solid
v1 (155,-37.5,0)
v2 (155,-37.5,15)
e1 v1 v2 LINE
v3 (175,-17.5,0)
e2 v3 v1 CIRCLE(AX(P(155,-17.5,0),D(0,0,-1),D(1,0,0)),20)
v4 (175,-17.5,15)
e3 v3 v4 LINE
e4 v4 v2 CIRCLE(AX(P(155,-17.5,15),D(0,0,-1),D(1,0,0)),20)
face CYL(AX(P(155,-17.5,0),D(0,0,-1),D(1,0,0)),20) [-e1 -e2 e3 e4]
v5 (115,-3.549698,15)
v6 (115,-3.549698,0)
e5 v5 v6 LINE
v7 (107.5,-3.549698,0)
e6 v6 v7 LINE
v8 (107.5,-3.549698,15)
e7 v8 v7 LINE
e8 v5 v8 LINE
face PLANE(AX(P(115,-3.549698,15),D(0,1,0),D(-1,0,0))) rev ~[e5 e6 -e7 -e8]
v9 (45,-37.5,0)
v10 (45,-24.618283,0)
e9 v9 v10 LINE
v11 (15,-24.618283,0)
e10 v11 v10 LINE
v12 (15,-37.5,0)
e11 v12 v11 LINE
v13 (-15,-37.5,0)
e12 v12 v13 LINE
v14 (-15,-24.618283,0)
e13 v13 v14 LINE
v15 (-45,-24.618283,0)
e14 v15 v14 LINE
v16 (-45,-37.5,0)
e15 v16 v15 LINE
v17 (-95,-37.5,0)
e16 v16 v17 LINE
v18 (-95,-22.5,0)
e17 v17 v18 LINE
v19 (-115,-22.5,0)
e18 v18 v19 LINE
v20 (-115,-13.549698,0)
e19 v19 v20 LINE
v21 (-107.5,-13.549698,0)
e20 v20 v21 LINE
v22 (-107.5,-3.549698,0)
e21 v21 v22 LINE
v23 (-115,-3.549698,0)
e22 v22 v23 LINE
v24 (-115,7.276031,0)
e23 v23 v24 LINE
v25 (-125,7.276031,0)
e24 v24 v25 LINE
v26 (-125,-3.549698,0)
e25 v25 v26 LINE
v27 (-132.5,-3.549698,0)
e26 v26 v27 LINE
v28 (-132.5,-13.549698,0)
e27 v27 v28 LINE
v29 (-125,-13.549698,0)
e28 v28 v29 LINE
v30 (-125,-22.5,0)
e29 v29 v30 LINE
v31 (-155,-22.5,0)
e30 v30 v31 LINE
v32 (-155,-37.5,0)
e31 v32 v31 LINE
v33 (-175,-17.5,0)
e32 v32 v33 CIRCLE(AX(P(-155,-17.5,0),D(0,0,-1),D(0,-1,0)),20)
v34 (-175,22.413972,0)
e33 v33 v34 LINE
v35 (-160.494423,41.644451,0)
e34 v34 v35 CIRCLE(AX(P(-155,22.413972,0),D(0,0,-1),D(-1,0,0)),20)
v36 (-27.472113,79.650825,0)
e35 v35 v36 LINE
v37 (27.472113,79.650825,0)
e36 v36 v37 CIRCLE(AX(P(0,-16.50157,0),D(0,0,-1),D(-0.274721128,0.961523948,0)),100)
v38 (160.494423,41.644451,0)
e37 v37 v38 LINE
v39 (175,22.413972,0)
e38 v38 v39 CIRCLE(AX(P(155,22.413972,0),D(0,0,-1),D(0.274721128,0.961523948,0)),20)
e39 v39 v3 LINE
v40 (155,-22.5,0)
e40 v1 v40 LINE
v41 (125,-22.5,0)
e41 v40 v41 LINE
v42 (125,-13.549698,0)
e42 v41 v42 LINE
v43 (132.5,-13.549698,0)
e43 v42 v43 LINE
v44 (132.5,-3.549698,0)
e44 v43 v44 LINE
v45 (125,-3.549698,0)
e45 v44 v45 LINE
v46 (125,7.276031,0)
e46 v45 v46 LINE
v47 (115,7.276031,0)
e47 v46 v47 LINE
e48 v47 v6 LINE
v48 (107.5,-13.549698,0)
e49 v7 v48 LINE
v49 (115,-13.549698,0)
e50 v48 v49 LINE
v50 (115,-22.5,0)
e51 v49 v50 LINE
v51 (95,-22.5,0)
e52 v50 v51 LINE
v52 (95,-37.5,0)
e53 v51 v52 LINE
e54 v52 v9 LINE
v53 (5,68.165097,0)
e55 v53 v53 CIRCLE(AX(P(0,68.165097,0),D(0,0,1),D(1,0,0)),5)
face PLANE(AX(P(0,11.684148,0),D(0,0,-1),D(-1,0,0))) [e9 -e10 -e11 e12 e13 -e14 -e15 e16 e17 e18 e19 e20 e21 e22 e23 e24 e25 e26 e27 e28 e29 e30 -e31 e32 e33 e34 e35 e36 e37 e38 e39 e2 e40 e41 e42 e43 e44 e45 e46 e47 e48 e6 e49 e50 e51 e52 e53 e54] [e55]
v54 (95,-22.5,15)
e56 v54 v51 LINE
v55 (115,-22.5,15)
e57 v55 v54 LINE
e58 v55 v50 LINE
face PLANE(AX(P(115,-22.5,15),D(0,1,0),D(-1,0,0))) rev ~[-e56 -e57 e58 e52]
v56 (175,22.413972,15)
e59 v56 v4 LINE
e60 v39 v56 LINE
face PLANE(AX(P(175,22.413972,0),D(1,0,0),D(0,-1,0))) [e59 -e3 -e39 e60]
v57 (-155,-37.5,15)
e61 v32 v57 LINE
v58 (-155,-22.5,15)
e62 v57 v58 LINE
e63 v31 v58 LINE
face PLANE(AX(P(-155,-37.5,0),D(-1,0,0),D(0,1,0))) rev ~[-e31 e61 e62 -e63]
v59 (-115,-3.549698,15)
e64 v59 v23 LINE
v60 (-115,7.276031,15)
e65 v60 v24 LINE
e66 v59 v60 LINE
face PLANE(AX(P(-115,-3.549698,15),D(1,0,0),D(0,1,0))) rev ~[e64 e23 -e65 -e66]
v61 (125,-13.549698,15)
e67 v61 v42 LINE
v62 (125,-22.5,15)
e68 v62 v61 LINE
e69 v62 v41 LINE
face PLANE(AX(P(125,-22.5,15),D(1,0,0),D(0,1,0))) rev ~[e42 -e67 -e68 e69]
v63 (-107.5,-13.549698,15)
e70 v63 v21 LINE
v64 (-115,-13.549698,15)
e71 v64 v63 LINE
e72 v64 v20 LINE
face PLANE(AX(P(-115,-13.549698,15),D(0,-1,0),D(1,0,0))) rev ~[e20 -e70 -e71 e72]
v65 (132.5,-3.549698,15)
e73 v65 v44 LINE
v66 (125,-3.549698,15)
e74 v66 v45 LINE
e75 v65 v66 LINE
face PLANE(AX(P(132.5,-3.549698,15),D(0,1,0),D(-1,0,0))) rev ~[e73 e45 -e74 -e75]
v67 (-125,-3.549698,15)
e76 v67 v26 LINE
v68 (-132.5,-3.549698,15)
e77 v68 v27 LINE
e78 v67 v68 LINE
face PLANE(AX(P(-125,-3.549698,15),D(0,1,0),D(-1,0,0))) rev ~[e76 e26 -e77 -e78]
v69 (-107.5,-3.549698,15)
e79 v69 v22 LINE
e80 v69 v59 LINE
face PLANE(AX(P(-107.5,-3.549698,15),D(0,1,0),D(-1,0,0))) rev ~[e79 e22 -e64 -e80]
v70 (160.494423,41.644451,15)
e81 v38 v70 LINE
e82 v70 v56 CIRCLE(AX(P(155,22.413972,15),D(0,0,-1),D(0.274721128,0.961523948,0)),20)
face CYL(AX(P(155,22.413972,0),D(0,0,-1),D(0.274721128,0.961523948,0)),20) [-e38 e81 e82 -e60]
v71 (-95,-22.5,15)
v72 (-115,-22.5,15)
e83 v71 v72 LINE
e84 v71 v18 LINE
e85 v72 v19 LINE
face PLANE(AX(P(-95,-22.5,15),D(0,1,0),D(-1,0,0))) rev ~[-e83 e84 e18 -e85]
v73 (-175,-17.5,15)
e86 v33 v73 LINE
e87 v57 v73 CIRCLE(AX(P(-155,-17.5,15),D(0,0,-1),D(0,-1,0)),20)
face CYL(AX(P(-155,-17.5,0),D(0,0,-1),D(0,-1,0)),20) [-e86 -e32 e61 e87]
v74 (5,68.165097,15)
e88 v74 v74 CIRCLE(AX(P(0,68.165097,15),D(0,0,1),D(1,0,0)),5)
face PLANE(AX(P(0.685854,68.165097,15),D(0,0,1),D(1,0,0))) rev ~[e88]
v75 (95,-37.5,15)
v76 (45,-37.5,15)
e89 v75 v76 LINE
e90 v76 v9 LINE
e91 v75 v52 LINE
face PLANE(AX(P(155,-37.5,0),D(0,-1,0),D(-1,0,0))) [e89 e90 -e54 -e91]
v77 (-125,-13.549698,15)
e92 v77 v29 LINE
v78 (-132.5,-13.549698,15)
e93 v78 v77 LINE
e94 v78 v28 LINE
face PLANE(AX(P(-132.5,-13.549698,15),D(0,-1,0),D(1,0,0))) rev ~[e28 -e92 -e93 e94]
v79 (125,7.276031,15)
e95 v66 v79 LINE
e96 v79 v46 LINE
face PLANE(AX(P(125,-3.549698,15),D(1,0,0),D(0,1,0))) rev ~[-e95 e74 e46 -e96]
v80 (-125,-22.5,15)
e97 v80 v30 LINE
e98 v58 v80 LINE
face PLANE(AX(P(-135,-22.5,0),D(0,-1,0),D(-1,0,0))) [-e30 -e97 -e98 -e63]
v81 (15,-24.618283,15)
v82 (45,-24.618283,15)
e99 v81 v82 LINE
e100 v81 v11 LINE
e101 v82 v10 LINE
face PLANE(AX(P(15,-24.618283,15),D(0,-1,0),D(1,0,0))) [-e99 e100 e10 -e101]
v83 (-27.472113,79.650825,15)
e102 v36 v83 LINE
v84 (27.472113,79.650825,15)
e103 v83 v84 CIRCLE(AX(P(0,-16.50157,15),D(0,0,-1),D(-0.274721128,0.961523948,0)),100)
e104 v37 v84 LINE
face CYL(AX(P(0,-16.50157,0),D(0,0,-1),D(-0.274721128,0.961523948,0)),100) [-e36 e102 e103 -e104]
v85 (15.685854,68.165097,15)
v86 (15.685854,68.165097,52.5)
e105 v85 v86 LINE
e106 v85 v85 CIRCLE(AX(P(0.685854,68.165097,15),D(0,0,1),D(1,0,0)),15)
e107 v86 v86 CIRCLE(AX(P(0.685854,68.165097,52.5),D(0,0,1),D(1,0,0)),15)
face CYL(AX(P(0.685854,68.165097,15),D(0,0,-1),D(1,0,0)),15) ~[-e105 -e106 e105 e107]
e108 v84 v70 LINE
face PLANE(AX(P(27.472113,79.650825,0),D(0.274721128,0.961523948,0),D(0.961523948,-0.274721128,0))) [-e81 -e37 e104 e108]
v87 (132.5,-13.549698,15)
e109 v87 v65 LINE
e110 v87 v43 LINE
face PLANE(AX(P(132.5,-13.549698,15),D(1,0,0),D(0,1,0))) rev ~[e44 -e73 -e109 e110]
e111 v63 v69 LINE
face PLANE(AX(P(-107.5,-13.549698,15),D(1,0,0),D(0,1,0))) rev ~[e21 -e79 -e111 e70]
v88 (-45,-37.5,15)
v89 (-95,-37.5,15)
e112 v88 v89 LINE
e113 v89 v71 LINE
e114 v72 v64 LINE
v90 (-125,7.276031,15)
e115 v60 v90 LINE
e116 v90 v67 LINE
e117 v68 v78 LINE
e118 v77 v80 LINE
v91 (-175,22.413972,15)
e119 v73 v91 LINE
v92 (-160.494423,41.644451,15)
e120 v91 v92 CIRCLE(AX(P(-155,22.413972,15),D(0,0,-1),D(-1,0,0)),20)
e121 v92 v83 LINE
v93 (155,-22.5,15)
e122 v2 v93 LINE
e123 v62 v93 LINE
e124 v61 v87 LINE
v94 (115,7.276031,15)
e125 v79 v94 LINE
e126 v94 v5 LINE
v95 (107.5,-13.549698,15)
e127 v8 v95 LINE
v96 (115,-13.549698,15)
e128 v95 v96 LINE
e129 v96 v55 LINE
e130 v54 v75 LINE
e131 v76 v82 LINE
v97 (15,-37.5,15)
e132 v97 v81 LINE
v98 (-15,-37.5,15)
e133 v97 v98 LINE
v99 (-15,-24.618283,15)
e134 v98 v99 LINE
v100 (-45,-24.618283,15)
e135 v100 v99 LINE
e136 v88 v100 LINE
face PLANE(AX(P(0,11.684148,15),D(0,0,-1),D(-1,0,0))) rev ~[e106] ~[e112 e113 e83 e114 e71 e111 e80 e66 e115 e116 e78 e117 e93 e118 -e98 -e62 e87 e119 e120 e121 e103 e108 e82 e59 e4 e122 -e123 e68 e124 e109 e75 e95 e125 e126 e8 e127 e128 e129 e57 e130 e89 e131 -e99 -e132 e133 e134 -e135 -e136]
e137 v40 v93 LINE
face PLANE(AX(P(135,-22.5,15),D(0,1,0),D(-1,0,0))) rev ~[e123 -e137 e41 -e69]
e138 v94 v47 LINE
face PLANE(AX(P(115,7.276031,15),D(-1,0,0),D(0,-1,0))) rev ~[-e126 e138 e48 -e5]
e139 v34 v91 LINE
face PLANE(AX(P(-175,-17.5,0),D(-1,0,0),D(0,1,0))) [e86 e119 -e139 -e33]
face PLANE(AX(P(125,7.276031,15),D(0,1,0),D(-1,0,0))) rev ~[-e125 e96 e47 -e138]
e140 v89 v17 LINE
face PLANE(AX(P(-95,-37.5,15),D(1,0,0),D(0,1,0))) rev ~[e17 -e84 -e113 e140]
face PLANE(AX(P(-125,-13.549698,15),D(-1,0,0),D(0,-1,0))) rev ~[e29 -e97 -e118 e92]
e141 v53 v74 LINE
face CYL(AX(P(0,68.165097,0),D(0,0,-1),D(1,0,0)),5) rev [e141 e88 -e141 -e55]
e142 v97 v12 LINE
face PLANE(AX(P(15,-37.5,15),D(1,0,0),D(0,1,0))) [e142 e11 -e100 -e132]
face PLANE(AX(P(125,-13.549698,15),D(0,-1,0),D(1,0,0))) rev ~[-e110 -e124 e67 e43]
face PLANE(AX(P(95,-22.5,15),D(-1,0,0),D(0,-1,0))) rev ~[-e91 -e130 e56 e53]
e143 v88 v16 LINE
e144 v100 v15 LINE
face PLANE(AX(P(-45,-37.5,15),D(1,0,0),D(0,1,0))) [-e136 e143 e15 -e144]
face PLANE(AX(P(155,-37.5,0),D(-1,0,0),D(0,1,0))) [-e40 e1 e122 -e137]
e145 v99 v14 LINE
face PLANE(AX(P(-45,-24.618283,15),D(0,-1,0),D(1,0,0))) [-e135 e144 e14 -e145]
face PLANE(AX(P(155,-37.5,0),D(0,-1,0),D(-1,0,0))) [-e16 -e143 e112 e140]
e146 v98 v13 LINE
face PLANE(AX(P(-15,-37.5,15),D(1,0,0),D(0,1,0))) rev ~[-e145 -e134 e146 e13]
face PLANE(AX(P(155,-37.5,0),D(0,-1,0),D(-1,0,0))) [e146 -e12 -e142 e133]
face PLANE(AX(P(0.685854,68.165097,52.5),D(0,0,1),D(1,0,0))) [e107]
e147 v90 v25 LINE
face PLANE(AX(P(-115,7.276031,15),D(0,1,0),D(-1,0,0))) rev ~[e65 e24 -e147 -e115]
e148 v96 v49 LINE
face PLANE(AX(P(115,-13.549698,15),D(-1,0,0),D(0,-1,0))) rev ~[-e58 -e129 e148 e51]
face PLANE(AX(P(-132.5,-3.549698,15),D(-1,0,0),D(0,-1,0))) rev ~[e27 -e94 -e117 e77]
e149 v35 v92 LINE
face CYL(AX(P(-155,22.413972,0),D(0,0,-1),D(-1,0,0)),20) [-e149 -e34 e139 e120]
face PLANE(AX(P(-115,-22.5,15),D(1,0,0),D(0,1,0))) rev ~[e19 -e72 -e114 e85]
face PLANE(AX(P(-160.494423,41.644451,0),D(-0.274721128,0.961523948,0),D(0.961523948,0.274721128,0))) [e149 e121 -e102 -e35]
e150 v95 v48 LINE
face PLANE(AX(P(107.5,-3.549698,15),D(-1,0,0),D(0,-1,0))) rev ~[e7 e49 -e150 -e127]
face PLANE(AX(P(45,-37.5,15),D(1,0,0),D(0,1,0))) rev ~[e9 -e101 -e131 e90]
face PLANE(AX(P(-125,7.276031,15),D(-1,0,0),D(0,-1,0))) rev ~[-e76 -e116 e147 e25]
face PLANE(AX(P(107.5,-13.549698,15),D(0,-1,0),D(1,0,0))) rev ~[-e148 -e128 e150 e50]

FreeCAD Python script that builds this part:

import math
import FreeCAD as App
import Part
import Sketcher
Q = App.Units.Quantity


def add_polygon(sketch, points):
    """Adds a closed chain of lines whose ends are joined by coincident constraints."""
    first, n = sketch.GeometryCount, len(points)
    for a, b in zip(points, points[1:] + points[:1]):
        sketch.addGeometry(Part.LineSegment(App.Vector(*a, 0), App.Vector(*b, 0)), False)
    for i in range(n):
        sketch.addConstraint(Sketcher.Constraint("Coincident", first + i, 2, first + (i + 1) % n, 1))

doc = App.newDocument("Part")
body = doc.addObject("PartDesign::Body", "Body")

# Sketch on XY plane
sketch1 = body.newObject("Sketcher::SketchObject", "Sketch")
sketch1.AttachmentSupport = (doc.getObject("XY_Plane"), [""])
sketch1.MapMode = "FlatFace"
sketch1.addGeometry([
    Part.LineSegment(App.Vector(-27.472113, 79.650825, 0), App.Vector(-160.494423, 41.644451, 0)),  # 0
    Part.ArcOfCircle(Part.Circle(App.Vector(-155, 22.413972, 0), App.Vector(0, 0, 1), 20), math.radians(105.945396), math.radians(180)),  # 1
    Part.LineSegment(App.Vector(-175, 22.413972, 0), App.Vector(-175, -17.5, 0)),  # 2
    Part.ArcOfCircle(Part.Circle(App.Vector(-155, -17.5, 0), App.Vector(0, 0, 1), 20), math.radians(180), math.radians(270)),  # 3
    Part.LineSegment(App.Vector(-155, -37.5, 0), App.Vector(155, -37.5, 0)),  # 4
    Part.ArcOfCircle(Part.Circle(App.Vector(155, -17.5, 0), App.Vector(0, 0, 1), 20), math.radians(-90), math.radians(0)),  # 5
    Part.LineSegment(App.Vector(175, -17.5, 0), App.Vector(175, 22.413972, 0)),  # 6
    Part.ArcOfCircle(Part.Circle(App.Vector(155, 22.413972, 0), App.Vector(0, 0, 1), 20), math.radians(0), math.radians(74.054604)),  # 7
    Part.LineSegment(App.Vector(160.494423, 41.644451, 0), App.Vector(27.472113, 79.650825, 0)),  # 8
    Part.ArcOfCircle(Part.Circle(App.Vector(0, -16.50157, 0), App.Vector(0, 0, 1), 100), math.radians(74.054604), math.radians(105.945396)),  # 9
    Part.Circle(App.Vector(0, 68.165097, 0), App.Vector(0, 0, 1), 5),  # 10
], False)
sketch1.addConstraint([
    Sketcher.Constraint("Tangent", 0, 2, 1, 1),
    Sketcher.Constraint("Tangent", 1, 2, 2, 1),
    Sketcher.Constraint("Tangent", 2, 2, 3, 1),
    Sketcher.Constraint("Tangent", 3, 2, 4, 1),
    Sketcher.Constraint("Tangent", 4, 2, 5, 1),
    Sketcher.Constraint("Tangent", 5, 2, 6, 1),
    Sketcher.Constraint("Tangent", 6, 2, 7, 1),
    Sketcher.Constraint("Tangent", 7, 2, 8, 1),
    Sketcher.Constraint("Tangent", 8, 2, 9, 1),
    Sketcher.Constraint("Tangent", 9, 2, 0, 1),
    Sketcher.Constraint("Vertical", 2),
    Sketcher.Constraint("Horizontal", 4),
    Sketcher.Constraint("Vertical", 6),
    Sketcher.Constraint("Equal", 1, 3),
    Sketcher.Constraint("Equal", 3, 5),
    Sketcher.Constraint("Equal", 5, 7),
    Sketcher.Constraint("Symmetric", 1, 3, 7, 3, -2),
    Sketcher.Constraint("PointOnObject", 9, 3, -2),
    Sketcher.Constraint("PointOnObject", 10, 3, -2),
    Sketcher.Constraint("Diameter", 10, Q("10 mm")),
    Sketcher.Constraint("Radius", 1, Q("20 mm")),
    Sketcher.Constraint("Radius", 9, Q("100 mm")),
    Sketcher.Constraint("DistanceX", 4, 1, 4, 2, Q("310 mm")),
    Sketcher.Constraint("DistanceY", 3, 3, -1, 1, Q("17.5 mm")),
    Sketcher.Constraint("DistanceY", 2, 2, 2, 1, Q("39.913972 mm")),
    Sketcher.Constraint("Distance", 0, Q("138.34529 mm")),
    Sketcher.Constraint("DistanceY", 10, 3, 8, 2, Q("11.485728 mm")),
])
pad1 = body.newObject("PartDesign::Pad", "Pad")
pad1.Profile = sketch1
pad1.Length = 15

# Sketch on XY plane
sketch2 = body.newObject("Sketcher::SketchObject", "Sketch001")
sketch2.AttachmentSupport = (doc.getObject("XY_Plane"), [""])
sketch2.MapMode = "FlatFace"
sketch2.AttachmentOffset = App.Placement(App.Vector(0, 0, 15), App.Rotation())
add_polygon(sketch2, [(95, -37.5), (135, -37.5), (135, -22.5), (125, -22.5), (125, -13.549698), (132.5, -13.549698), (132.5, -3.549698), (125, -3.549698), (125, 7.276031), (115, 7.276031), (115, -3.549698), (107.5, -3.549698), (107.5, -13.549698), (115, -13.549698), (115, -22.5), (95, -22.5)])  # lines 0-15
add_polygon(sketch2, [(15, -24.618283), (15, -37.5), (45, -37.5), (45, -24.618283)])  # lines 16-19
add_polygon(sketch2, [(-45, -24.618283), (-45, -37.5), (-15, -37.5), (-15, -24.618283)])  # lines 20-23
add_polygon(sketch2, [(-95, -37.5), (-95, -22.5), (-115, -22.5), (-115, -13.549698), (-107.5, -13.549698), (-107.5, -3.549698), (-115, -3.549698), (-115, 7.276031), (-125, 7.276031), (-125, -3.549698), (-132.5, -3.549698), (-132.5, -13.549698), (-125, -13.549698), (-125, -22.5), (-135, -22.5), (-135, -37.5)])  # lines 24-39
sketch2.addConstraint([
    Sketcher.Constraint("Horizontal", 0),
    Sketcher.Constraint("Vertical", 1),
    Sketcher.Constraint("Horizontal", 2),
    Sketcher.Constraint("Vertical", 3),
    Sketcher.Constraint("Horizontal", 4),
    Sketcher.Constraint("Vertical", 5),
    Sketcher.Constraint("Horizontal", 6),
    Sketcher.Constraint("Vertical", 7),
    Sketcher.Constraint("Horizontal", 8),
    Sketcher.Constraint("Vertical", 9),
    Sketcher.Constraint("Horizontal", 10),
    Sketcher.Constraint("Vertical", 11),
    Sketcher.Constraint("Horizontal", 12),
    Sketcher.Constraint("Vertical", 13),
    Sketcher.Constraint("Horizontal", 14),
    Sketcher.Constraint("Vertical", 15),
    Sketcher.Constraint("Vertical", 16),
    Sketcher.Constraint("Horizontal", 17),
    Sketcher.Constraint("Vertical", 18),
    Sketcher.Constraint("Horizontal", 19),
    Sketcher.Constraint("Vertical", 20),
    Sketcher.Constraint("Horizontal", 21),
    Sketcher.Constraint("Vertical", 22),
    Sketcher.Constraint("Horizontal", 23),
    Sketcher.Constraint("Vertical", 24),
    Sketcher.Constraint("Horizontal", 25),
    Sketcher.Constraint("Vertical", 26),
    Sketcher.Constraint("Horizontal", 27),
    Sketcher.Constraint("Vertical", 28),
    Sketcher.Constraint("Horizontal", 29),
    Sketcher.Constraint("Vertical", 30),
    Sketcher.Constraint("Horizontal", 31),
    Sketcher.Constraint("Vertical", 32),
    Sketcher.Constraint("Horizontal", 33),
    Sketcher.Constraint("Vertical", 34),
    Sketcher.Constraint("Horizontal", 35),
    Sketcher.Constraint("Vertical", 36),
    Sketcher.Constraint("Horizontal", 37),
    Sketcher.Constraint("Vertical", 38),
    Sketcher.Constraint("Horizontal", 39),
    Sketcher.Constraint("Symmetric", 17, 2, 20, 2, -2),
    Sketcher.Constraint("Symmetric", 19, 2, 22, 2, -2),
    Sketcher.Constraint("Symmetric", 14, 2, 24, 2, -2),
    Sketcher.Constraint("Symmetric", 12, 2, 26, 2, -2),
    Sketcher.Constraint("Symmetric", 10, 2, 28, 2, -2),
    Sketcher.Constraint("Symmetric", 8, 2, 30, 2, -2),
    Sketcher.Constraint("Symmetric", 6, 2, 32, 2, -2),
    Sketcher.Constraint("Symmetric", 4, 2, 34, 2, -2),
    Sketcher.Constraint("Symmetric", 2, 2, 36, 2, -2),
    Sketcher.Constraint("Symmetric", 0, 2, 38, 2, -2),
    Sketcher.Constraint("Horizontal", 6, 2, 9, 2),
    Sketcher.Constraint("Horizontal", 4, 2, 11, 2),
    Sketcher.Constraint("Horizontal", 2, 2, 13, 2),
    Sketcher.Constraint("Horizontal", 15, 2, 16, 2),
    Sketcher.Constraint("Vertical", 3, 2, 6, 2),
    Sketcher.Constraint("Vertical", 9, 2, 12, 2),
    Sketcher.Constraint("Equal", 2, 8),
    Sketcher.Constraint("Equal", 6, 10),
    Sketcher.Constraint("Equal", 37, 5),
    Sketcher.Constraint("DistanceX", 0, 1, 0, 2, Q("40 mm")),
    Sketcher.Constraint("DistanceX", 2, 2, 2, 1, Q("10 mm")),
    Sketcher.Constraint("DistanceX", 17, 1, 17, 2, Q("30 mm")),
    Sketcher.Constraint("DistanceY", 1, 1, 1, 2, Q("15 mm")),
    Sketcher.Constraint("DistanceX", 4, 1, 4, 2, Q("7.5 mm")),
    Sketcher.Constraint("DistanceX", -1, 1, 0, 2, Q("135 mm")),
    Sketcher.Constraint("DistanceX", -1, 1, 16, 2, Q("15 mm")),
    Sketcher.Constraint("DistanceY", 0, 2, -1, 1, Q("37.5 mm")),
    Sketcher.Constraint("DistanceY", 7, 1, 7, 2, Q("10.825729 mm")),
    Sketcher.Constraint("DistanceY", 3, 1, 3, 2, Q("8.950302 mm")),
    Sketcher.Constraint("DistanceY", 16, 2, 16, 1, Q("12.881717 mm")),
])
pocket1 = body.newObject("PartDesign::Pocket", "Pocket")
pocket1.Profile = sketch2
pocket1.Length = 15

# Sketch on XY plane
sketch3 = body.newObject("Sketcher::SketchObject", "Sketch002")
sketch3.AttachmentSupport = (doc.getObject("XY_Plane"), [""])
sketch3.MapMode = "FlatFace"
add_polygon(sketch3, [(-135, -22.5), (-135, -37.5), (-155, -37.5), (-155, -22.5)])  # lines 0-3
add_polygon(sketch3, [(155, -22.5), (155, -37.5), (135, -37.5), (135, -22.5)])  # lines 4-7
sketch3.addConstraint([
    Sketcher.Constraint("Vertical", 0),
    Sketcher.Constraint("Horizontal", 1),
    Sketcher.Constraint("Vertical", 2),
    Sketcher.Constraint("Horizontal", 3),
    Sketcher.Constraint("Vertical", 4),
    Sketcher.Constraint("Horizontal", 5),
    Sketcher.Constraint("Vertical", 6),
    Sketcher.Constraint("Horizontal", 7),
    Sketcher.Constraint("Symmetric", 1, 2, 4, 2, -2),
    Sketcher.Constraint("Symmetric", 3, 2, 6, 2, -2),
    Sketcher.Constraint("DistanceX", 1, 2, 1, 1, Q("20 mm")),
    Sketcher.Constraint("DistanceY", 0, 2, 0, 1, Q("15 mm")),
    Sketcher.Constraint("DistanceX", 0, 2, -1, 1, Q("135 mm")),
    Sketcher.Constraint("DistanceY", 0, 2, -1, 1, Q("37.5 mm")),
])
pocket2 = body.newObject("PartDesign::Pocket", "Pocket001")
pocket2.Profile = sketch3
pocket2.Length = 15
pocket2.Reversed = True

# Sketch on XY plane
sketch4 = body.newObject("Sketcher::SketchObject", "Sketch003")
sketch4.AttachmentSupport = (doc.getObject("XY_Plane"), [""])
sketch4.MapMode = "FlatFace"
sketch4.AttachmentOffset = App.Placement(App.Vector(0, 0, 15), App.Rotation())
sketch4.addGeometry(Part.Circle(App.Vector(0.685854, 68.165097, 0), App.Vector(0, 0, 1), 15), False)
sketch4.addConstraint([
    Sketcher.Constraint("Diameter", 0, Q("30 mm")),
    Sketcher.Constraint("DistanceX", -1, 1, 0, 3, Q("0.685854 mm")),
    Sketcher.Constraint("DistanceY", -1, 1, 0, 3, Q("68.165097 mm")),
])
pad2 = body.newObject("PartDesign::Pad", "Pad001")
pad2.Profile = sketch4
pad2.Length = 37.5

doc.recompute()
